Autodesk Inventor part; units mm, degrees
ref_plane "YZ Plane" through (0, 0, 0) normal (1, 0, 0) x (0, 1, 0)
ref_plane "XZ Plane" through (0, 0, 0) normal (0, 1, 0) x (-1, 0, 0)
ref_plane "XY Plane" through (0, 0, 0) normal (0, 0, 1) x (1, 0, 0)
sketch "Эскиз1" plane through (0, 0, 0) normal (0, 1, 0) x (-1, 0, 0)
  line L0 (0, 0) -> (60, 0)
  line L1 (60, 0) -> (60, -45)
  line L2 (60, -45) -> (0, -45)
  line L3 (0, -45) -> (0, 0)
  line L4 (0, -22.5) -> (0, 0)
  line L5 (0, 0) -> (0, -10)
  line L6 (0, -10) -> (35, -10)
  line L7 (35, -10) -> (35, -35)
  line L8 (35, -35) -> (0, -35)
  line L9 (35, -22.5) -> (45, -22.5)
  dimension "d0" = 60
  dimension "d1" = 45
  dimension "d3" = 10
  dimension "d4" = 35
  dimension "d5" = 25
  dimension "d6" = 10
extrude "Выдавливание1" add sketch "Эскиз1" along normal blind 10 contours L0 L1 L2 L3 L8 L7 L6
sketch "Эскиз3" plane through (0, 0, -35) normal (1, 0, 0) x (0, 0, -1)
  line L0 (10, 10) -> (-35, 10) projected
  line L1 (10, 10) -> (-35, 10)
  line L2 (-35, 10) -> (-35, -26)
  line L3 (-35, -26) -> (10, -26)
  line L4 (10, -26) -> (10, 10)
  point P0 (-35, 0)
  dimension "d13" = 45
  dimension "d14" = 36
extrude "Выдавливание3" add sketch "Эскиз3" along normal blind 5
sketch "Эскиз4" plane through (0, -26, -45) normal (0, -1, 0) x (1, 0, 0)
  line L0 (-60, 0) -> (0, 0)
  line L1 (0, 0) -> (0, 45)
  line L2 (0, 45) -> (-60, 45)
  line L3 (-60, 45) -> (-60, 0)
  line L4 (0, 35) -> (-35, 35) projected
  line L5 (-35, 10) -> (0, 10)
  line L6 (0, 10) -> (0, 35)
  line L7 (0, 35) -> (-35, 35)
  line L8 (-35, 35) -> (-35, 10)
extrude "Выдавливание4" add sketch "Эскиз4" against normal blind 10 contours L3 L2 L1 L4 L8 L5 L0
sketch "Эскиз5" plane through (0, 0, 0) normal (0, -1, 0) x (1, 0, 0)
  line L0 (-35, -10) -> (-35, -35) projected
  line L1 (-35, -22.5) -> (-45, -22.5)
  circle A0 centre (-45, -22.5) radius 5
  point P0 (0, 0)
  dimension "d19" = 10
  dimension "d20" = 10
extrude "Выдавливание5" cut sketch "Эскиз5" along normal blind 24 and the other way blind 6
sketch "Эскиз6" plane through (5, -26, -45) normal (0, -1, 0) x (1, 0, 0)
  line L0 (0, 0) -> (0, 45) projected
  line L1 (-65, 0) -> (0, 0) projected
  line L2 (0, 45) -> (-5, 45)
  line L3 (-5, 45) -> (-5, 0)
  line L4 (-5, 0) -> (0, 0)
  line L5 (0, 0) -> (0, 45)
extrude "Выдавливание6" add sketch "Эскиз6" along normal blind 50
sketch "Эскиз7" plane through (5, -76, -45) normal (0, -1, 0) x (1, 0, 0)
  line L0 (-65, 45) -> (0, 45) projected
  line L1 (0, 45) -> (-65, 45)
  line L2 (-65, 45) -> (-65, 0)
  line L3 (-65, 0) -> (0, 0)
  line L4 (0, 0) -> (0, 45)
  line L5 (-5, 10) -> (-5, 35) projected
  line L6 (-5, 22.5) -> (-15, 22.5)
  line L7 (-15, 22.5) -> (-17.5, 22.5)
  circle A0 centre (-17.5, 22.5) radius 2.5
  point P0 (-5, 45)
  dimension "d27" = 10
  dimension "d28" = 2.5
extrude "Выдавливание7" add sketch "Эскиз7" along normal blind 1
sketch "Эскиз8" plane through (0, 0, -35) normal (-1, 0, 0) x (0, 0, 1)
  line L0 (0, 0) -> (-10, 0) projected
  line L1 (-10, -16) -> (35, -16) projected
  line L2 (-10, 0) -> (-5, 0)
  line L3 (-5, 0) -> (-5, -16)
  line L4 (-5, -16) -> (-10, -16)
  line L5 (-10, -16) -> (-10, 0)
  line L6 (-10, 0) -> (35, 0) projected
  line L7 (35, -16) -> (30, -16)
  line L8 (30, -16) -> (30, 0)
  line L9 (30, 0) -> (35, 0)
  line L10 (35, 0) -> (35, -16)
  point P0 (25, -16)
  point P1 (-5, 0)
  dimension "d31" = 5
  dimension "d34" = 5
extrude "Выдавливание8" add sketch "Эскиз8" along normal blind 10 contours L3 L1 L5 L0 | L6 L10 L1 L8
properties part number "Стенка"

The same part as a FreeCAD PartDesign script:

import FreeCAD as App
import Part
import Sketcher
from FreeCAD import Vector
Q = App.Units.Quantity


def add_polygon(sketch, points):
    """Adds a closed chain of lines whose ends are joined by coincident constraints."""
    first, n = sketch.GeometryCount, len(points)
    for a, b in zip(points, points[1:] + points[:1]):
        sketch.addGeometry(Part.LineSegment(App.Vector(*a, 0), App.Vector(*b, 0)), False)
    for i in range(n):
        sketch.addConstraint(Sketcher.Constraint("Coincident", first + i, 2, first + (i + 1) % n, 1))

doc = App.newDocument("Part")
body = doc.addObject("PartDesign::Body", "Body")

# Sketch on XZ plane
sketch1 = body.newObject("Sketcher::SketchObject", "Sketch")
sketch1.AttachmentSupport = (doc.getObject("XZ_Plane"), [""])
sketch1.MapMode = "FlatFace"
add_polygon(sketch1, [(-60, 0), (0, 0), (0, -10), (-35, -10), (-35, -35), (0, -35), (0, -45), (-60, -45)])  # lines 0-7
sketch1.addConstraint([
    Sketcher.Constraint("Horizontal", 0),
    Sketcher.Constraint("Vertical", 1),
    Sketcher.Constraint("Horizontal", 2),
    Sketcher.Constraint("Vertical", 3),
    Sketcher.Constraint("Horizontal", 4),
    Sketcher.Constraint("Vertical", 5),
    Sketcher.Constraint("Horizontal", 6),
    Sketcher.Constraint("Vertical", 7),
    Sketcher.Constraint("Coincident", 0, 2, -1, 1),
    Sketcher.Constraint("PointOnObject", 4, 2, -2),
    Sketcher.Constraint("Equal", 1, 5),
    Sketcher.Constraint("DistanceX", 0, 1, 0, 2, Q("60 mm")),
    Sketcher.Constraint("DistanceX", 2, 2, 2, 1, Q("35 mm")),
    Sketcher.Constraint("DistanceY", 1, 2, 1, 1, Q("10 mm")),
    Sketcher.Constraint("DistanceY", 3, 2, 3, 1, Q("25 mm")),
])
pad1 = body.newObject("PartDesign::Pad", "Pad")
pad1.Profile = sketch1
pad1.Length = 10
pad1.Reversed = True

# Sketch on YZ plane
sketch2 = body.newObject("Sketcher::SketchObject", "Sketch001")
sketch2.AttachmentSupport = (doc.getObject("YZ_Plane"), [""])
sketch2.MapMode = "FlatFace"
add_polygon(sketch2, [(-26, -45), (10, -45), (10, 0), (-26, 0)])  # lines 0-3
sketch2.addConstraint([
    Sketcher.Constraint("Horizontal", 0),
    Sketcher.Constraint("Vertical", 1),
    Sketcher.Constraint("Horizontal", 2),
    Sketcher.Constraint("Vertical", 3),
    Sketcher.Constraint("PointOnObject", 1, 2, -1),
    Sketcher.Constraint("DistanceX", 0, 1, 0, 2, Q("36 mm")),
    Sketcher.Constraint("DistanceY", 1, 1, 1, 2, Q("45 mm")),
    Sketcher.Constraint("DistanceX", -1, 1, 0, 2, Q("10 mm")),
])
pad2 = body.newObject("PartDesign::Pad", "Pad001")
pad2.Profile = sketch2
pad2.Length = 5

# Sketch on XZ plane
sketch3 = body.newObject("Sketcher::SketchObject", "Sketch002")
sketch3.AttachmentSupport = (doc.getObject("XZ_Plane"), [""])
sketch3.MapMode = "FlatFace"
sketch3.AttachmentOffset = App.Placement(Vector(0, 0, 26), App.Rotation())
add_polygon(sketch3, [(-60, 0), (-60, -45), (0, -45), (0, -35), (-35, -35), (-35, -10), (0, -10), (0, 0)])  # lines 0-7
sketch3.addConstraint([
    Sketcher.Constraint("Vertical", 0),
    Sketcher.Constraint("Horizontal", 1),
    Sketcher.Constraint("Vertical", 2),
    Sketcher.Constraint("Horizontal", 3),
    Sketcher.Constraint("Vertical", 4),
    Sketcher.Constraint("Horizontal", 5),
    Sketcher.Constraint("Vertical", 6),
    Sketcher.Constraint("Horizontal", 7),
    Sketcher.Constraint("Coincident", 6, 2, -1, 1),
    Sketcher.Constraint("PointOnObject", 1, 2, -2),
    Sketcher.Constraint("Equal", 2, 6),
    Sketcher.Constraint("DistanceX", 1, 1, 1, 2, Q("60 mm")),
    Sketcher.Constraint("DistanceX", 3, 2, 3, 1, Q("35 mm")),
    Sketcher.Constraint("DistanceY", 0, 2, 0, 1, Q("45 mm")),
    Sketcher.Constraint("DistanceY", 2, 1, 2, 2, Q("10 mm")),
])
pad3 = body.newObject("PartDesign::Pad", "Pad002")
pad3.Profile = sketch3
pad3.Length = 10
pad3.Reversed = True

# Sketch on XZ plane
sketch4 = body.newObject("Sketcher::SketchObject", "Sketch003")
sketch4.AttachmentSupport = (doc.getObject("XZ_Plane"), [""])
sketch4.MapMode = "FlatFace"
sketch4.addGeometry(Part.Circle(Vector(-45, -22, 0), Vector(0, 0, 1), 5), False)
sketch4.addConstraint([
    Sketcher.Constraint("Diameter", 0, Q("10 mm")),
    Sketcher.Constraint("DistanceX", 0, 3, -1, 1, Q("45 mm")),
    Sketcher.Constraint("DistanceY", 0, 3, -1, 1, Q("22.5 mm")),
])
pocket1 = body.newObject("PartDesign::Pocket", "Pocket")
pocket1.Profile = sketch4
pocket1.Type = "TwoLengths"
pocket1.Length = 24
pocket1.Length2 = 6
pocket1.Reversed = True

# Sketch on XZ plane
sketch5 = body.newObject("Sketcher::SketchObject", "Sketch004")
sketch5.AttachmentSupport = (doc.getObject("XZ_Plane"), [""])
sketch5.MapMode = "FlatFace"
sketch5.AttachmentOffset = App.Placement(Vector(0, 0, 26), App.Rotation())
add_polygon(sketch5, [(0, -45), (5, -45), (5, 0), (0, 0)])  # lines 0-3
sketch5.addConstraint([
    Sketcher.Constraint("Horizontal", 0),
    Sketcher.Constraint("Vertical", 1),
    Sketcher.Constraint("Horizontal", 2),
    Sketcher.Constraint("Vertical", 3),
    Sketcher.Constraint("Coincident", 2, 2, -1, 1),
    Sketcher.Constraint("DistanceX", 0, 1, 0, 2, Q("5 mm")),
    Sketcher.Constraint("DistanceY", 1, 1, 1, 2, Q("45 mm")),
])
pad4 = body.newObject("PartDesign::Pad", "Pad003")
pad4.Profile = sketch5
pad4.Length = 50

# Sketch on XZ plane
sketch6 = body.newObject("Sketcher::SketchObject", "Sketch005")
sketch6.AttachmentSupport = (doc.getObject("XZ_Plane"), [""])
sketch6.MapMode = "FlatFace"
sketch6.AttachmentOffset = App.Placement(Vector(0, 0, 76), App.Rotation())
add_polygon(sketch6, [(5, 0), (-60, 0), (-60, -45), (5, -45)])  # lines 0-3
sketch6.addGeometry(Part.Circle(Vector(-12.5, -22.5, 0), Vector(0, 0, 1), 2.5), False)  # 4
sketch6.addConstraint([
    Sketcher.Constraint("Horizontal", 0),
    Sketcher.Constraint("Vertical", 1),
    Sketcher.Constraint("Horizontal", 2),
    Sketcher.Constraint("Vertical", 3),
    Sketcher.Constraint("PointOnObject", 0, 2, -1),
    Sketcher.Constraint("Diameter", 4, Q("5 mm")),
    Sketcher.Constraint("DistanceX", 0, 2, 0, 1, Q("65 mm")),
    Sketcher.Constraint("DistanceY", 1, 2, 1, 1, Q("45 mm")),
    Sketcher.Constraint("DistanceX", 0, 2, -1, 1, Q("60 mm")),
    Sketcher.Constraint("DistanceX", 4, 3, -1, 1, Q("12.5 mm")),
    Sketcher.Constraint("DistanceY", 4, 3, -1, 1, Q("22.5 mm")),
])
pad5 = body.newObject("PartDesign::Pad", "Pad004")
pad5.Profile = sketch6
pad5.Length = 1

# Sketch on YZ plane
sketch7 = body.newObject("Sketcher::SketchObject", "Sketch006")
sketch7.AttachmentSupport = (doc.getObject("YZ_Plane"), [""])
sketch7.MapMode = "FlatFace"
add_polygon(sketch7, [(-16, -40), (0, -40), (0, -45), (-16, -45)])  # lines 0-3
add_polygon(sketch7, [(0, 0), (0, -5), (-16, -5), (-16, 0)])  # lines 4-7
sketch7.addConstraint([
    Sketcher.Constraint("Horizontal", 0),
    Sketcher.Constraint("Vertical", 1),
    Sketcher.Constraint("Horizontal", 2),
    Sketcher.Constraint("Vertical", 3),
    Sketcher.Constraint("Vertical", 4),
    Sketcher.Constraint("Horizontal", 5),
    Sketcher.Constraint("Vertical", 6),
    Sketcher.Constraint("Horizontal", 7),
    Sketcher.Constraint("Coincident", 7, 2, -1, 1),
    Sketcher.Constraint("PointOnObject", 0, 2, -2),
    Sketcher.Constraint("Vertical", 3, 2, 5, 2),
    Sketcher.Constraint("Equal", 3, 4),
    Sketcher.Constraint("DistanceY", 1, 2, 1, 1, Q("5 mm")),
    Sketcher.Constraint("DistanceX", 0, 1, 0, 2, Q("16 mm")),
    Sketcher.Constraint("DistanceY", 0, 2, -1, 1, Q("40 mm")),
])
pad6 = body.newObject("PartDesign::Pad", "Pad005")
pad6.Profile = sketch7
pad6.Length = 10
pad6.Reversed = True

doc.recompute()
